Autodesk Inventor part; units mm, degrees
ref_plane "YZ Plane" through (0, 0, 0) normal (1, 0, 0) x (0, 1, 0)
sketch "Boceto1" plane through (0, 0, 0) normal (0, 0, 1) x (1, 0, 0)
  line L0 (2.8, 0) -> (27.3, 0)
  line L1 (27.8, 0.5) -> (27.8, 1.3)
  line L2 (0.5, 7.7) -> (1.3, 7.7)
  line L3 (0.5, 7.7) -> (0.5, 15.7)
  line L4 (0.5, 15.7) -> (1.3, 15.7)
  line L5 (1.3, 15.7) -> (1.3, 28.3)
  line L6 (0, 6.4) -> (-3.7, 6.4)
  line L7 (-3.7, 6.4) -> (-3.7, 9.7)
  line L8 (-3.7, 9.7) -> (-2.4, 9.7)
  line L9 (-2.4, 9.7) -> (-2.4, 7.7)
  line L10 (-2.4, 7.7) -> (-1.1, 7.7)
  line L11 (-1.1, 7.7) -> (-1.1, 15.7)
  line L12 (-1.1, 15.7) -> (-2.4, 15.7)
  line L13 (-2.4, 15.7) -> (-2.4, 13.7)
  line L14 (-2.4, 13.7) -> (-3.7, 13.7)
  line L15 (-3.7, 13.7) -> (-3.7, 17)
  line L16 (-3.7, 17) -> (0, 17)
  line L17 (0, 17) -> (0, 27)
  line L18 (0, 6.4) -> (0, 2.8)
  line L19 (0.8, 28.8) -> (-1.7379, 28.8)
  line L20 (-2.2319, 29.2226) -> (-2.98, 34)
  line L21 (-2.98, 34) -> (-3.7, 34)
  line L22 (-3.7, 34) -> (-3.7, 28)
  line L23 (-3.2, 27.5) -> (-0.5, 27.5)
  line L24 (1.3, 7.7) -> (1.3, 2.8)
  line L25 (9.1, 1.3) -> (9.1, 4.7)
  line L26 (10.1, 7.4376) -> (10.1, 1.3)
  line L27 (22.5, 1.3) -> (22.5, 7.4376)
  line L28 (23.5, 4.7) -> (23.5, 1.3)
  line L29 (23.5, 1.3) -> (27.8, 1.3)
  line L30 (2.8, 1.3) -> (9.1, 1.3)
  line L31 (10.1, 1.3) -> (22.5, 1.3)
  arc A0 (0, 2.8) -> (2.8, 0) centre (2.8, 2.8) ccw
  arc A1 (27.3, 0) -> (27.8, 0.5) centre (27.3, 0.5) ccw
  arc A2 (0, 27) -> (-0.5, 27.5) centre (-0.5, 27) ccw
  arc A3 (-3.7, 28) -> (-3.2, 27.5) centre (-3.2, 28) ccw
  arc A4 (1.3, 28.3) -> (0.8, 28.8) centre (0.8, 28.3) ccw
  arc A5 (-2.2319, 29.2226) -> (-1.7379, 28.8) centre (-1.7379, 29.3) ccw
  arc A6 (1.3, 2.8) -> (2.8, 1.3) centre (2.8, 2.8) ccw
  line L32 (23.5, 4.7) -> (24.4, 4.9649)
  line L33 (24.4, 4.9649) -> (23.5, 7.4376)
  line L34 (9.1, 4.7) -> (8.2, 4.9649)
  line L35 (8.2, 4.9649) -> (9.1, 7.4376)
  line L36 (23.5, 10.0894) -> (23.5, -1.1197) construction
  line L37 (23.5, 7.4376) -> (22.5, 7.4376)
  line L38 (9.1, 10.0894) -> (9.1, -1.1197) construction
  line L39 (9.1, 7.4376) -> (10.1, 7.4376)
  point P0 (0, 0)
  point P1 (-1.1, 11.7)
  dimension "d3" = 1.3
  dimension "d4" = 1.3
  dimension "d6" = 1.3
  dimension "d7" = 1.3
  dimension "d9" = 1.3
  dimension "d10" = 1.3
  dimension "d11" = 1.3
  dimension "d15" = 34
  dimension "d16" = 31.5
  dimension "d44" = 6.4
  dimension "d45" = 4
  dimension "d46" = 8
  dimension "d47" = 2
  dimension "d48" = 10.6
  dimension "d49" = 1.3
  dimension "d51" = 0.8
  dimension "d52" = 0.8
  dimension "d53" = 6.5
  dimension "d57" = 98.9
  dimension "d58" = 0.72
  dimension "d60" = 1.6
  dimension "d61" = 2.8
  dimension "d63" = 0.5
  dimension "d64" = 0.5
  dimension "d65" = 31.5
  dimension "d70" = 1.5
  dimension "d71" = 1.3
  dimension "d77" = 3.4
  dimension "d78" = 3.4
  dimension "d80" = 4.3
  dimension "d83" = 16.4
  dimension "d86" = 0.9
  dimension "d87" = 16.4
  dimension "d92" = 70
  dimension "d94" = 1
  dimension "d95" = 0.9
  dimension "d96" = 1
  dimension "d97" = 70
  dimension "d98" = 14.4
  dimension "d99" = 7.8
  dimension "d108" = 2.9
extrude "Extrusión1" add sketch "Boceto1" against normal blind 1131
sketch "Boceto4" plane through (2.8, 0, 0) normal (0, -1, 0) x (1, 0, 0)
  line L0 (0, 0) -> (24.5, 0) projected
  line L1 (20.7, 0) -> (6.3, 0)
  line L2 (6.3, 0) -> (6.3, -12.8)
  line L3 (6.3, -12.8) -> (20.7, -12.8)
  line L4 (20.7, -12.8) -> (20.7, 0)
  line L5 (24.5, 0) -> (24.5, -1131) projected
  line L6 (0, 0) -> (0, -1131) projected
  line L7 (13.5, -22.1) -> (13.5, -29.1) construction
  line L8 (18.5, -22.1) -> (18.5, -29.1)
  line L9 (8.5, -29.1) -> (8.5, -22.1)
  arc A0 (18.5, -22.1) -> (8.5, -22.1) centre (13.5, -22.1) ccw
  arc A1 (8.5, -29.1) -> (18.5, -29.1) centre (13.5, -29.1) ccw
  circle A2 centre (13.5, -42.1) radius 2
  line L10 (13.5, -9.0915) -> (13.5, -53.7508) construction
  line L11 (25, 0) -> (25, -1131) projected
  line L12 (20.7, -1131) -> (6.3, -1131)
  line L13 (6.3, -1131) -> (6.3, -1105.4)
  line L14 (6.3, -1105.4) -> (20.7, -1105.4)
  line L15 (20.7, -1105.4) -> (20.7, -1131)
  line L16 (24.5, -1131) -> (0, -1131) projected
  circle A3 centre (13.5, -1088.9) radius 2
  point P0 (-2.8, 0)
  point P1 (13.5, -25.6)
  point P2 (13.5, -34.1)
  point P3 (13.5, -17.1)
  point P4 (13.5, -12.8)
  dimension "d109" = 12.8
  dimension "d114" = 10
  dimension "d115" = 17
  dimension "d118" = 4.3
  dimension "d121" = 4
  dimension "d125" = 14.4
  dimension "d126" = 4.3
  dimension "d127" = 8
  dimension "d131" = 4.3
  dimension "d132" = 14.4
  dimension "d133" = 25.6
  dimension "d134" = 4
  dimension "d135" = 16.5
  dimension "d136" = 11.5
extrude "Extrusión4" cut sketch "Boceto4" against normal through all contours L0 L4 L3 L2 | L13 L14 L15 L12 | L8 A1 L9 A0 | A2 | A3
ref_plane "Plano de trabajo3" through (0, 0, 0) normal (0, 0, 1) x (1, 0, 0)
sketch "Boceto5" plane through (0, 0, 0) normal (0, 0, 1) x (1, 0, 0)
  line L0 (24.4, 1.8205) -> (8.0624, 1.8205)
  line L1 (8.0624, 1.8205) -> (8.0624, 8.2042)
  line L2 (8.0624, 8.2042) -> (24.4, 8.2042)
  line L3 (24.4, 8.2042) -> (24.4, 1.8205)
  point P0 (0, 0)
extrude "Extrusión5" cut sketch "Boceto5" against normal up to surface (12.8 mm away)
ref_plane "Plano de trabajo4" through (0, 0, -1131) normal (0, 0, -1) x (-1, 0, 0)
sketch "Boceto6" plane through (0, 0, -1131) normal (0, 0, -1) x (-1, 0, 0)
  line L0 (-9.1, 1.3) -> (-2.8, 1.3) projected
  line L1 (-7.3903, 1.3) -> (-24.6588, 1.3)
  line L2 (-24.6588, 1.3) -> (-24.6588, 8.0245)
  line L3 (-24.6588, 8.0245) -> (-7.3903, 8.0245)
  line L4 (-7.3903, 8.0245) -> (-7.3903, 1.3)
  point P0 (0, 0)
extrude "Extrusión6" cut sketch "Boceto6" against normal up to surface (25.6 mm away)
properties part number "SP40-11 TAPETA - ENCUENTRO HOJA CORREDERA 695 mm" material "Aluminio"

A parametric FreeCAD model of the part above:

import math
import FreeCAD as App
import Part
import Sketcher
from FreeCAD import Vector
Q = App.Units.Quantity

doc = App.newDocument("Part")
body = doc.addObject("PartDesign::Body", "Body")

sketch1 = body.newObject("Sketcher::SketchObject", "Sketch")
sketch1.AttachmentSupport = (doc.getObject("XY_Plane"), [""])
sketch1.MapMode = "FlatFace"
sketch1.addGeometry([
    Part.ArcOfCircle(Part.Circle(Vector(2.8, 2.8, 0), Vector(0, 0, 1), 2.8), math.radians(180), math.radians(270)),
    Part.LineSegment(Vector(2.8, 0, 0), Vector(27.3, 0, 0)),
    Part.ArcOfCircle(Part.Circle(Vector(27.3, 0.5, 0), Vector(0, 0, 1), 0.5), math.radians(-90), math.radians(0)),
    Part.LineSegment(Vector(27.8, 0.5, 0), Vector(27.8, 1.3, 0)),
    Part.LineSegment(Vector(27.8, 1.3, 0), Vector(23.5, 1.3, 0)),
    Part.LineSegment(Vector(23.5, 1.3, 0), Vector(23.5, 4.7, 0)),
    Part.LineSegment(Vector(23.5, 4.7, 0), Vector(24.4, 5, 0)),
    Part.LineSegment(Vector(24.4, 5, 0), Vector(23.5, 7.4, 0)),
    Part.LineSegment(Vector(23.5, 7.4, 0), Vector(22.5, 7.4, 0)),
    Part.LineSegment(Vector(22.5, 7.4, 0), Vector(22.5, 1.3, 0)),
    Part.LineSegment(Vector(22.5, 1.3, 0), Vector(10.1, 1.3, 0)),
    Part.LineSegment(Vector(10.1, 1.3, 0), Vector(10.1, 7.4, 0)),
    Part.LineSegment(Vector(10.1, 7.4, 0), Vector(9.1, 7.4, 0)),
    Part.LineSegment(Vector(9.1, 7.4, 0), Vector(8.2, 5, 0)),
    Part.LineSegment(Vector(8.2, 5, 0), Vector(9.1, 4.7, 0)),
    Part.LineSegment(Vector(9.1, 4.7, 0), Vector(9.1, 1.3, 0)),
    Part.LineSegment(Vector(9.1, 1.3, 0), Vector(2.8, 1.3, 0)),
    Part.ArcOfCircle(Part.Circle(Vector(2.8, 2.8, 0), Vector(0, 0, 1), 1.5), math.radians(180), math.radians(270)),
    Part.LineSegment(Vector(1.3, 2.8, 0), Vector(1.3, 7.7, 0)),
    Part.LineSegment(Vector(1.3, 7.7, 0), Vector(0.5, 7.7, 0)),
    Part.LineSegment(Vector(0.5, 7.7, 0), Vector(0.5, 15.7, 0)),
    Part.LineSegment(Vector(0.5, 15.7, 0), Vector(1.3, 15.7, 0)),
    Part.LineSegment(Vector(1.3, 15.7, 0), Vector(1.3, 28.3, 0)),
    Part.ArcOfCircle(Part.Circle(Vector(0.8, 28.3, 0), Vector(0, 0, 1), 0.5), math.radians(0), math.radians(90)),
    Part.LineSegment(Vector(0.8, 28.8, 0), Vector(-1.7, 28.8, 0)),
    Part.ArcOfCircle(Part.Circle(Vector(-1.7, 29.3, 0), Vector(0, 0, 1), 0.5), math.radians(-171), math.radians(-90)),
    Part.LineSegment(Vector(-2.2, 29.2, 0), Vector(-3, 34, 0)),
    Part.LineSegment(Vector(-3, 34, 0), Vector(-3.7, 34, 0)),
    Part.LineSegment(Vector(-3.7, 34, 0), Vector(-3.7, 28, 0)),
    Part.ArcOfCircle(Part.Circle(Vector(-3.2, 28, 0), Vector(0, 0, 1), 0.5), math.radians(180), math.radians(270)),
    Part.LineSegment(Vector(-3.2, 27.5, 0), Vector(-0.5, 27.5, 0)),
    Part.ArcOfCircle(Part.Circle(Vector(-0.5, 27, 0), Vector(0, 0, 1), 0.5), math.radians(0), math.radians(90)),
    Part.LineSegment(Vector(0, 27, 0), Vector(0, 17, 0)),
    Part.LineSegment(Vector(0, 17, 0), Vector(-3.7, 17, 0)),
    Part.LineSegment(Vector(-3.7, 17, 0), Vector(-3.7, 13.7, 0)),
    Part.LineSegment(Vector(-3.7, 13.7, 0), Vector(-2.4, 13.7, 0)),
    Part.LineSegment(Vector(-2.4, 13.7, 0), Vector(-2.4, 15.7, 0)),
    Part.LineSegment(Vector(-2.4, 15.7, 0), Vector(-1.1, 15.7, 0)),
    Part.LineSegment(Vector(-1.1, 15.7, 0), Vector(-1.1, 7.7, 0)),
    Part.LineSegment(Vector(-1.1, 7.7, 0), Vector(-2.4, 7.7, 0)),
    Part.LineSegment(Vector(-2.4, 7.7, 0), Vector(-2.4, 9.7, 0)),
    Part.LineSegment(Vector(-2.4, 9.7, 0), Vector(-3.7, 9.7, 0)),
    Part.LineSegment(Vector(-3.7, 9.7, 0), Vector(-3.7, 6.4, 0)),
    Part.LineSegment(Vector(-3.7, 6.4, 0), Vector(0, 6.4, 0)),
    Part.LineSegment(Vector(0, 6.4, 0), Vector(0, 2.8, 0)),
], False)
sketch1.addConstraint([
    Sketcher.Constraint("Tangent", 0, 2, 1, 1),
    Sketcher.Constraint("Tangent", 1, 2, 2, 1),
    Sketcher.Constraint("Tangent", 2, 2, 3, 1),
    Sketcher.Constraint("Coincident", 3, 2, 4, 1),
    Sketcher.Constraint("Coincident", 4, 2, 5, 1),
    Sketcher.Constraint("Coincident", 5, 2, 6, 1),
    Sketcher.Constraint("Coincident", 6, 2, 7, 1),
    Sketcher.Constraint("Coincident", 7, 2, 8, 1),
    Sketcher.Constraint("Coincident", 8, 2, 9, 1),
    Sketcher.Constraint("Coincident", 9, 2, 10, 1),
    Sketcher.Constraint("Coincident", 10, 2, 11, 1),
    Sketcher.Constraint("Coincident", 11, 2, 12, 1),
    Sketcher.Constraint("Coincident", 12, 2, 13, 1),
    Sketcher.Constraint("Coincident", 13, 2, 14, 1),
    Sketcher.Constraint("Coincident", 14, 2, 15, 1),
    Sketcher.Constraint("Coincident", 15, 2, 16, 1),
    Sketcher.Constraint("Tangent", 16, 2, 17, 2),
    Sketcher.Constraint("Tangent", 17, 1, 18, 1),
    Sketcher.Constraint("Coincident", 18, 2, 19, 1),
    Sketcher.Constraint("Coincident", 19, 2, 20, 1),
    Sketcher.Constraint("Coincident", 20, 2, 21, 1),
    Sketcher.Constraint("Coincident", 21, 2, 22, 1),
    Sketcher.Constraint("Tangent", 22, 2, 23, 1),
    Sketcher.Constraint("Tangent", 23, 2, 24, 1),
    Sketcher.Constraint("Tangent", 24, 2, 25, 2),
    Sketcher.Constraint("Tangent", 25, 1, 26, 1),
    Sketcher.Constraint("Coincident", 26, 2, 27, 1),
    Sketcher.Constraint("Coincident", 27, 2, 28, 1),
    Sketcher.Constraint("Tangent", 28, 2, 29, 1),
    Sketcher.Constraint("Tangent", 29, 2, 30, 1),
    Sketcher.Constraint("Tangent", 30, 2, 31, 2),
    Sketcher.Constraint("Tangent", 31, 1, 32, 1),
    Sketcher.Constraint("Coincident", 32, 2, 33, 1),
    Sketcher.Constraint("Coincident", 33, 2, 34, 1),
    Sketcher.Constraint("Coincident", 34, 2, 35, 1),
    Sketcher.Constraint("Coincident", 35, 2, 36, 1),
    Sketcher.Constraint("Coincident", 36, 2, 37, 1),
    Sketcher.Constraint("Coincident", 37, 2, 38, 1),
    Sketcher.Constraint("Coincident", 38, 2, 39, 1),
    Sketcher.Constraint("Coincident", 39, 2, 40, 1),
    Sketcher.Constraint("Coincident", 40, 2, 41, 1),
    Sketcher.Constraint("Coincident", 41, 2, 42, 1),
    Sketcher.Constraint("Coincident", 42, 2, 43, 1),
    Sketcher.Constraint("Coincident", 43, 2, 44, 1),
    Sketcher.Constraint("Tangent", 44, 2, 0, 1),
    Sketcher.Constraint("Horizontal", 1),
    Sketcher.Constraint("Vertical", 3),
    Sketcher.Constraint("Horizontal", 4),
    Sketcher.Constraint("Vertical", 5),
    Sketcher.Constraint("Horizontal", 8),
    Sketcher.Constraint("Vertical", 9),
    Sketcher.Constraint("Horizontal", 10),
    Sketcher.Constraint("Vertical", 11),
    Sketcher.Constraint("Horizontal", 12),
    Sketcher.Constraint("Vertical", 15),
    Sketcher.Constraint("Horizontal", 16),
    Sketcher.Constraint("Vertical", 18),
    Sketcher.Constraint("Horizontal", 19),
    Sketcher.Constraint("Vertical", 20),
    Sketcher.Constraint("Horizontal", 21),
    Sketcher.Constraint("Vertical", 22),
    Sketcher.Constraint("Horizontal", 24),
    Sketcher.Constraint("Horizontal", 27),
    Sketcher.Constraint("Vertical", 28),
    Sketcher.Constraint("Horizontal", 30),
    Sketcher.Constraint("Vertical", 32),
    Sketcher.Constraint("Horizontal", 33),
    Sketcher.Constraint("Vertical", 34),
    Sketcher.Constraint("Horizontal", 35),
    Sketcher.Constraint("Vertical", 36),
    Sketcher.Constraint("Horizontal", 37),
    Sketcher.Constraint("Vertical", 38),
    Sketcher.Constraint("Horizontal", 39),
    Sketcher.Constraint("Vertical", 40),
    Sketcher.Constraint("Horizontal", 41),
    Sketcher.Constraint("Vertical", 42),
    Sketcher.Constraint("Horizontal", 43),
    Sketcher.Constraint("Vertical", 44),
    Sketcher.Constraint("Coincident", 17, 3, 0, 3),
    Sketcher.Constraint("Equal", 2, 23),
    Sketcher.Constraint("Equal", 23, 25),
    Sketcher.Constraint("Equal", 25, 29),
    Sketcher.Constraint("Equal", 29, 31),
    Sketcher.Constraint("PointOnObject", 0, 2, -1),
    Sketcher.Constraint("PointOnObject", 31, 1, -2),
    Sketcher.Constraint("PointOnObject", 43, 2, -2),
    Sketcher.Constraint("Horizontal", 4, 2, 9, 2),
    Sketcher.Constraint("Horizontal", 8, 2, 11, 2),
    Sketcher.Constraint("Horizontal", 6, 2, 13, 2),
    Sketcher.Constraint("Horizontal", 5, 2, 14, 2),
    Sketcher.Constraint("Horizontal", 10, 2, 15, 2),
    Sketcher.Constraint("Horizontal", 21, 2, 36, 2),
    Sketcher.Constraint("Horizontal", 19, 2, 38, 2),
    Sketcher.Constraint("Vertical", 5, 2, 7, 2),
    Sketcher.Constraint("Vertical", 12, 2, 14, 2),
    Sketcher.Constraint("Vertical", 18, 2, 21, 2),
    Sketcher.Constraint("Vertical", 28, 2, 33, 2),
    Sketcher.Constraint("Vertical", 36, 2, 39, 2),
    Sketcher.Constraint("Vertical", 34, 2, 41, 2),
    Sketcher.Constraint("Equal", 8, 12),
    Sketcher.Constraint("Equal", 35, 37),
    Sketcher.Constraint("Equal", 21, 3),
    Sketcher.Constraint("Equal", 36, 40),
    Sketcher.Constraint("Equal", 34, 42),
    Sketcher.Constraint("Equal", 7, 13),
    Sketcher.Constraint("Radius", 0, Q("2.8 mm")),
    Sketcher.Constraint("Radius", 2, Q("0.5 mm")),
    Sketcher.Constraint("Radius", 17, Q("1.5 mm")),
    Sketcher.Constraint("DistanceX", 8, 2, 8, 1, Q("1 mm")),
    Sketcher.Constraint("DistanceY", 20, 1, 20, 2, Q("8 mm")),
    Sketcher.Constraint("DistanceY", 36, 1, 36, 2, Q("2 mm")),
    Sketcher.Constraint("DistanceX", 4, 2, 4, 1, Q("4.3 mm")),
    Sketcher.Constraint("DistanceX", 35, 1, 35, 2, Q("1.3 mm")),
    Sketcher.Constraint("DistanceY", 5, 1, 5, 2, Q("3.4 mm")),
    Sketcher.Constraint("DistanceY", -1, 1, 26, 2, Q("34 mm")),
    Sketcher.Constraint("Angle", 26, Q("98.8998 deg")),
    Sketcher.Constraint("DistanceX", 29, 3, 23, 3, Q("4 mm")),
    Sketcher.Constraint("DistanceX", 27, 2, 27, 1, Q("0.72 mm")),
    Sketcher.Constraint("DistanceY", -1, 1, 42, 2, Q("6.4 mm")),
    Sketcher.Constraint("DistanceY", 29, 3, 25, 3, Q("1.3 mm")),
    Sketcher.Constraint("DistanceX", 5, 2, 6, 2, Q("0.9 mm")),
    Sketcher.Constraint("DistanceY", 16, 2, 18, 2, Q("6.4 mm")),
    Sketcher.Constraint("DistanceX", 21, 2, 12, 2, Q("7.8 mm")),
    Sketcher.Constraint("DistanceY", 28, 2, 28, 1, Q("6 mm")),
    Sketcher.Constraint("Angle", 7, Q("110.0002 deg")),
    Sketcher.Constraint("DistanceX", 1, 1, 1, 2, Q("24.5 mm")),
    Sketcher.Constraint("Angle", 6, Q("16.401 deg")),
])
pad1 = body.newObject("PartDesign::Pad", "Pad")
pad1.Profile = sketch1
pad1.Length = 1131
pad1.Reversed = True

sketch2 = body.newObject("Sketcher::SketchObject", "Sketch001")
sketch2.AttachmentSupport = (doc.getObject("XZ_Plane"), [""])
sketch2.MapMode = "FlatFace"
sketch2.addGeometry([
    Part.LineSegment(Vector(23.5, 0, 0), Vector(9.1, 0, 0)),
    Part.LineSegment(Vector(9.1, 0, 0), Vector(9.1, -12.8, 0)),
    Part.LineSegment(Vector(9.1, -12.8, 0), Vector(23.5, -12.8, 0)),
    Part.LineSegment(Vector(23.5, -12.8, 0), Vector(23.5, 0, 0)),
    Part.LineSegment(Vector(9.1, -1105.4, 0), Vector(9.1, -1131, 0)),
    Part.LineSegment(Vector(9.1, -1131, 0), Vector(23.5, -1131, 0)),
    Part.LineSegment(Vector(23.5, -1131, 0), Vector(23.5, -1105.4, 0)),
    Part.LineSegment(Vector(23.5, -1105.4, 0), Vector(9.1, -1105.4, 0)),
    Part.LineSegment(Vector(21.3, -29.1, 0), Vector(21.3, -22.1, 0)),
    Part.ArcOfCircle(Part.Circle(Vector(16.3, -22.1, 0), Vector(0, 0, 1), 5), math.radians(0), math.radians(180)),
    Part.LineSegment(Vector(11.3, -22.1, 0), Vector(11.3, -29.1, 0)),
    Part.ArcOfCircle(Part.Circle(Vector(16.3, -29.1, 0), Vector(0, 0, 1), 5), math.radians(180), math.radians(360)),
    Part.Circle(Vector(16.3, -42.1, 0), Vector(0, 0, 1), 2),
    Part.Circle(Vector(16.3, -1088.9, 0), Vector(0, 0, 1), 2),
], False)
sketch2.addConstraint([
    Sketcher.Constraint("Coincident", 0, 2, 1, 1),
    Sketcher.Constraint("Coincident", 1, 2, 2, 1),
    Sketcher.Constraint("Coincident", 2, 2, 3, 1),
    Sketcher.Constraint("Coincident", 3, 2, 0, 1),
    Sketcher.Constraint("Coincident", 4, 2, 5, 1),
    Sketcher.Constraint("Coincident", 5, 2, 6, 1),
    Sketcher.Constraint("Coincident", 6, 2, 7, 1),
    Sketcher.Constraint("Coincident", 7, 2, 4, 1),
    Sketcher.Constraint("Tangent", 8, 2, 9, 1),
    Sketcher.Constraint("Tangent", 9, 2, 10, 1),
    Sketcher.Constraint("Tangent", 10, 2, 11, 1),
    Sketcher.Constraint("Tangent", 11, 2, 8, 1),
    Sketcher.Constraint("Horizontal", 0),
    Sketcher.Constraint("Vertical", 1),
    Sketcher.Constraint("Horizontal", 2),
    Sketcher.Constraint("Vertical", 3),
    Sketcher.Constraint("Vertical", 4),
    Sketcher.Constraint("Horizontal", 5),
    Sketcher.Constraint("Vertical", 6),
    Sketcher.Constraint("Horizontal", 7),
    Sketcher.Constraint("Vertical", 8),
    Sketcher.Constraint("Vertical", 10),
    Sketcher.Constraint("Equal", 12, 13),
    Sketcher.Constraint("PointOnObject", 0, 2, -1),
    Sketcher.Constraint("Vertical", 11, 3, 12, 3),
    Sketcher.Constraint("Vertical", 12, 3, 13, 3),
    Sketcher.Constraint("Vertical", 1, 2, 4, 2),
    Sketcher.Constraint("Vertical", 3, 2, 5, 2),
    Sketcher.Constraint("Diameter", 12, Q("4 mm")),
    Sketcher.Constraint("Radius", 9, Q("5 mm")),
    Sketcher.Constraint("DistanceX", 0, 2, 0, 1, Q("14.4 mm")),
    Sketcher.Constraint("DistanceY", 1, 2, 1, 1, Q("12.8 mm")),
    Sketcher.Constraint("DistanceY", 4, 2, 4, 1, Q("25.6 mm")),
    Sketcher.Constraint("DistanceY", 6, 2, 13, 3, Q("16.5 mm")),
    Sketcher.Constraint("DistanceY", 8, 1, 8, 2, Q("7 mm")),
    Sketcher.Constraint("DistanceY", 4, 2, -1, 1, Q("1131 mm")),
    Sketcher.Constraint("DistanceY", 12, 3, 11, 3, Q("13 mm")),
    Sketcher.Constraint("DistanceX", -1, 1, 9, 3, Q("16.3 mm")),
    Sketcher.Constraint("DistanceY", 9, 3, -1, 1, Q("22.1 mm")),
    Sketcher.Constraint("DistanceX", -1, 1, 0, 2, Q("9.1 mm")),
])
pocket1 = body.newObject("PartDesign::Pocket", "Pocket")
pocket1.Profile = sketch2
pocket1.Type = "ThroughAll"

sketch3 = body.newObject("Sketcher::SketchObject", "Sketch002")
sketch3.AttachmentSupport = (doc.getObject("XY_Plane"), [""])
sketch3.MapMode = "FlatFace"
sketch3.addGeometry([
    Part.LineSegment(Vector(8, 2, 0), Vector(24, 2, 0)),
    Part.LineSegment(Vector(24, 2, 0), Vector(24, 8, 0)),
    Part.LineSegment(Vector(24, 8, 0), Vector(8, 8, 0)),
    Part.LineSegment(Vector(8, 8, 0), Vector(8, 2, 0)),
], False)
sketch3.addConstraint([
    Sketcher.Constraint("Coincident", 0, 2, 1, 1),
    Sketcher.Constraint("Coincident", 1, 2, 2, 1),
    Sketcher.Constraint("Coincident", 2, 2, 3, 1),
    Sketcher.Constraint("Coincident", 3, 2, 0, 1),
    Sketcher.Constraint("Horizontal", 0),
    Sketcher.Constraint("Vertical", 1),
    Sketcher.Constraint("Horizontal", 2),
    Sketcher.Constraint("Vertical", 3),
    Sketcher.Constraint("DistanceX", -1, 1, 0, 2, Q("24.4 mm")),
    Sketcher.Constraint("DistanceX", 0, 1, 0, 2, Q("16.3376 mm")),
    Sketcher.Constraint("DistanceY", 1, 1, 1, 2, Q("6.3837 mm")),
    Sketcher.Constraint("DistanceY", -1, 1, 0, 2, Q("1.8205 mm")),
])
pocket2 = body.newObject("PartDesign::Pocket", "Pocket001")
pocket2.Profile = sketch3
pocket2.Length = 12.8

sketch4 = body.newObject("Sketcher::SketchObject", "Sketch003")
sketch4.AttachmentSupport = (doc.getObject("XY_Plane"), [""])
sketch4.MapMode = "FlatFace"
sketch4.AttachmentOffset = App.Placement(Vector(0, 0, -1131), App.Rotation())
sketch4.addGeometry([
    Part.LineSegment(Vector(25, 1, 0), Vector(7, 1, 0)),
    Part.LineSegment(Vector(7, 1, 0), Vector(7, 8, 0)),
    Part.LineSegment(Vector(7, 8, 0), Vector(25, 8, 0)),
    Part.LineSegment(Vector(25, 8, 0), Vector(25, 1, 0)),
], False)
sketch4.addConstraint([
    Sketcher.Constraint("Coincident", 0, 2, 1, 1),
    Sketcher.Constraint("Coincident", 1, 2, 2, 1),
    Sketcher.Constraint("Coincident", 2, 2, 3, 1),
    Sketcher.Constraint("Coincident", 3, 2, 0, 1),
    Sketcher.Constraint("Horizontal", 0),
    Sketcher.Constraint("Vertical", 1),
    Sketcher.Constraint("Horizontal", 2),
    Sketcher.Constraint("Vertical", 3),
    Sketcher.Constraint("DistanceY", -1, 1, 0, 2, Q("1.3 mm")),
    Sketcher.Constraint("DistanceX", 0, 2, 0, 1, Q("17.2685 mm")),
    Sketcher.Constraint("DistanceY", 1, 1, 1, 2, Q("6.7245 mm")),
    Sketcher.Constraint("DistanceX", -1, 1, 0, 2, Q("7.3903 mm")),
])
pocket3 = body.newObject("PartDesign::Pocket", "Pocket002")
pocket3.Profile = sketch4
pocket3.Length = 25.6
pocket3.Reversed = True

doc.recompute()
